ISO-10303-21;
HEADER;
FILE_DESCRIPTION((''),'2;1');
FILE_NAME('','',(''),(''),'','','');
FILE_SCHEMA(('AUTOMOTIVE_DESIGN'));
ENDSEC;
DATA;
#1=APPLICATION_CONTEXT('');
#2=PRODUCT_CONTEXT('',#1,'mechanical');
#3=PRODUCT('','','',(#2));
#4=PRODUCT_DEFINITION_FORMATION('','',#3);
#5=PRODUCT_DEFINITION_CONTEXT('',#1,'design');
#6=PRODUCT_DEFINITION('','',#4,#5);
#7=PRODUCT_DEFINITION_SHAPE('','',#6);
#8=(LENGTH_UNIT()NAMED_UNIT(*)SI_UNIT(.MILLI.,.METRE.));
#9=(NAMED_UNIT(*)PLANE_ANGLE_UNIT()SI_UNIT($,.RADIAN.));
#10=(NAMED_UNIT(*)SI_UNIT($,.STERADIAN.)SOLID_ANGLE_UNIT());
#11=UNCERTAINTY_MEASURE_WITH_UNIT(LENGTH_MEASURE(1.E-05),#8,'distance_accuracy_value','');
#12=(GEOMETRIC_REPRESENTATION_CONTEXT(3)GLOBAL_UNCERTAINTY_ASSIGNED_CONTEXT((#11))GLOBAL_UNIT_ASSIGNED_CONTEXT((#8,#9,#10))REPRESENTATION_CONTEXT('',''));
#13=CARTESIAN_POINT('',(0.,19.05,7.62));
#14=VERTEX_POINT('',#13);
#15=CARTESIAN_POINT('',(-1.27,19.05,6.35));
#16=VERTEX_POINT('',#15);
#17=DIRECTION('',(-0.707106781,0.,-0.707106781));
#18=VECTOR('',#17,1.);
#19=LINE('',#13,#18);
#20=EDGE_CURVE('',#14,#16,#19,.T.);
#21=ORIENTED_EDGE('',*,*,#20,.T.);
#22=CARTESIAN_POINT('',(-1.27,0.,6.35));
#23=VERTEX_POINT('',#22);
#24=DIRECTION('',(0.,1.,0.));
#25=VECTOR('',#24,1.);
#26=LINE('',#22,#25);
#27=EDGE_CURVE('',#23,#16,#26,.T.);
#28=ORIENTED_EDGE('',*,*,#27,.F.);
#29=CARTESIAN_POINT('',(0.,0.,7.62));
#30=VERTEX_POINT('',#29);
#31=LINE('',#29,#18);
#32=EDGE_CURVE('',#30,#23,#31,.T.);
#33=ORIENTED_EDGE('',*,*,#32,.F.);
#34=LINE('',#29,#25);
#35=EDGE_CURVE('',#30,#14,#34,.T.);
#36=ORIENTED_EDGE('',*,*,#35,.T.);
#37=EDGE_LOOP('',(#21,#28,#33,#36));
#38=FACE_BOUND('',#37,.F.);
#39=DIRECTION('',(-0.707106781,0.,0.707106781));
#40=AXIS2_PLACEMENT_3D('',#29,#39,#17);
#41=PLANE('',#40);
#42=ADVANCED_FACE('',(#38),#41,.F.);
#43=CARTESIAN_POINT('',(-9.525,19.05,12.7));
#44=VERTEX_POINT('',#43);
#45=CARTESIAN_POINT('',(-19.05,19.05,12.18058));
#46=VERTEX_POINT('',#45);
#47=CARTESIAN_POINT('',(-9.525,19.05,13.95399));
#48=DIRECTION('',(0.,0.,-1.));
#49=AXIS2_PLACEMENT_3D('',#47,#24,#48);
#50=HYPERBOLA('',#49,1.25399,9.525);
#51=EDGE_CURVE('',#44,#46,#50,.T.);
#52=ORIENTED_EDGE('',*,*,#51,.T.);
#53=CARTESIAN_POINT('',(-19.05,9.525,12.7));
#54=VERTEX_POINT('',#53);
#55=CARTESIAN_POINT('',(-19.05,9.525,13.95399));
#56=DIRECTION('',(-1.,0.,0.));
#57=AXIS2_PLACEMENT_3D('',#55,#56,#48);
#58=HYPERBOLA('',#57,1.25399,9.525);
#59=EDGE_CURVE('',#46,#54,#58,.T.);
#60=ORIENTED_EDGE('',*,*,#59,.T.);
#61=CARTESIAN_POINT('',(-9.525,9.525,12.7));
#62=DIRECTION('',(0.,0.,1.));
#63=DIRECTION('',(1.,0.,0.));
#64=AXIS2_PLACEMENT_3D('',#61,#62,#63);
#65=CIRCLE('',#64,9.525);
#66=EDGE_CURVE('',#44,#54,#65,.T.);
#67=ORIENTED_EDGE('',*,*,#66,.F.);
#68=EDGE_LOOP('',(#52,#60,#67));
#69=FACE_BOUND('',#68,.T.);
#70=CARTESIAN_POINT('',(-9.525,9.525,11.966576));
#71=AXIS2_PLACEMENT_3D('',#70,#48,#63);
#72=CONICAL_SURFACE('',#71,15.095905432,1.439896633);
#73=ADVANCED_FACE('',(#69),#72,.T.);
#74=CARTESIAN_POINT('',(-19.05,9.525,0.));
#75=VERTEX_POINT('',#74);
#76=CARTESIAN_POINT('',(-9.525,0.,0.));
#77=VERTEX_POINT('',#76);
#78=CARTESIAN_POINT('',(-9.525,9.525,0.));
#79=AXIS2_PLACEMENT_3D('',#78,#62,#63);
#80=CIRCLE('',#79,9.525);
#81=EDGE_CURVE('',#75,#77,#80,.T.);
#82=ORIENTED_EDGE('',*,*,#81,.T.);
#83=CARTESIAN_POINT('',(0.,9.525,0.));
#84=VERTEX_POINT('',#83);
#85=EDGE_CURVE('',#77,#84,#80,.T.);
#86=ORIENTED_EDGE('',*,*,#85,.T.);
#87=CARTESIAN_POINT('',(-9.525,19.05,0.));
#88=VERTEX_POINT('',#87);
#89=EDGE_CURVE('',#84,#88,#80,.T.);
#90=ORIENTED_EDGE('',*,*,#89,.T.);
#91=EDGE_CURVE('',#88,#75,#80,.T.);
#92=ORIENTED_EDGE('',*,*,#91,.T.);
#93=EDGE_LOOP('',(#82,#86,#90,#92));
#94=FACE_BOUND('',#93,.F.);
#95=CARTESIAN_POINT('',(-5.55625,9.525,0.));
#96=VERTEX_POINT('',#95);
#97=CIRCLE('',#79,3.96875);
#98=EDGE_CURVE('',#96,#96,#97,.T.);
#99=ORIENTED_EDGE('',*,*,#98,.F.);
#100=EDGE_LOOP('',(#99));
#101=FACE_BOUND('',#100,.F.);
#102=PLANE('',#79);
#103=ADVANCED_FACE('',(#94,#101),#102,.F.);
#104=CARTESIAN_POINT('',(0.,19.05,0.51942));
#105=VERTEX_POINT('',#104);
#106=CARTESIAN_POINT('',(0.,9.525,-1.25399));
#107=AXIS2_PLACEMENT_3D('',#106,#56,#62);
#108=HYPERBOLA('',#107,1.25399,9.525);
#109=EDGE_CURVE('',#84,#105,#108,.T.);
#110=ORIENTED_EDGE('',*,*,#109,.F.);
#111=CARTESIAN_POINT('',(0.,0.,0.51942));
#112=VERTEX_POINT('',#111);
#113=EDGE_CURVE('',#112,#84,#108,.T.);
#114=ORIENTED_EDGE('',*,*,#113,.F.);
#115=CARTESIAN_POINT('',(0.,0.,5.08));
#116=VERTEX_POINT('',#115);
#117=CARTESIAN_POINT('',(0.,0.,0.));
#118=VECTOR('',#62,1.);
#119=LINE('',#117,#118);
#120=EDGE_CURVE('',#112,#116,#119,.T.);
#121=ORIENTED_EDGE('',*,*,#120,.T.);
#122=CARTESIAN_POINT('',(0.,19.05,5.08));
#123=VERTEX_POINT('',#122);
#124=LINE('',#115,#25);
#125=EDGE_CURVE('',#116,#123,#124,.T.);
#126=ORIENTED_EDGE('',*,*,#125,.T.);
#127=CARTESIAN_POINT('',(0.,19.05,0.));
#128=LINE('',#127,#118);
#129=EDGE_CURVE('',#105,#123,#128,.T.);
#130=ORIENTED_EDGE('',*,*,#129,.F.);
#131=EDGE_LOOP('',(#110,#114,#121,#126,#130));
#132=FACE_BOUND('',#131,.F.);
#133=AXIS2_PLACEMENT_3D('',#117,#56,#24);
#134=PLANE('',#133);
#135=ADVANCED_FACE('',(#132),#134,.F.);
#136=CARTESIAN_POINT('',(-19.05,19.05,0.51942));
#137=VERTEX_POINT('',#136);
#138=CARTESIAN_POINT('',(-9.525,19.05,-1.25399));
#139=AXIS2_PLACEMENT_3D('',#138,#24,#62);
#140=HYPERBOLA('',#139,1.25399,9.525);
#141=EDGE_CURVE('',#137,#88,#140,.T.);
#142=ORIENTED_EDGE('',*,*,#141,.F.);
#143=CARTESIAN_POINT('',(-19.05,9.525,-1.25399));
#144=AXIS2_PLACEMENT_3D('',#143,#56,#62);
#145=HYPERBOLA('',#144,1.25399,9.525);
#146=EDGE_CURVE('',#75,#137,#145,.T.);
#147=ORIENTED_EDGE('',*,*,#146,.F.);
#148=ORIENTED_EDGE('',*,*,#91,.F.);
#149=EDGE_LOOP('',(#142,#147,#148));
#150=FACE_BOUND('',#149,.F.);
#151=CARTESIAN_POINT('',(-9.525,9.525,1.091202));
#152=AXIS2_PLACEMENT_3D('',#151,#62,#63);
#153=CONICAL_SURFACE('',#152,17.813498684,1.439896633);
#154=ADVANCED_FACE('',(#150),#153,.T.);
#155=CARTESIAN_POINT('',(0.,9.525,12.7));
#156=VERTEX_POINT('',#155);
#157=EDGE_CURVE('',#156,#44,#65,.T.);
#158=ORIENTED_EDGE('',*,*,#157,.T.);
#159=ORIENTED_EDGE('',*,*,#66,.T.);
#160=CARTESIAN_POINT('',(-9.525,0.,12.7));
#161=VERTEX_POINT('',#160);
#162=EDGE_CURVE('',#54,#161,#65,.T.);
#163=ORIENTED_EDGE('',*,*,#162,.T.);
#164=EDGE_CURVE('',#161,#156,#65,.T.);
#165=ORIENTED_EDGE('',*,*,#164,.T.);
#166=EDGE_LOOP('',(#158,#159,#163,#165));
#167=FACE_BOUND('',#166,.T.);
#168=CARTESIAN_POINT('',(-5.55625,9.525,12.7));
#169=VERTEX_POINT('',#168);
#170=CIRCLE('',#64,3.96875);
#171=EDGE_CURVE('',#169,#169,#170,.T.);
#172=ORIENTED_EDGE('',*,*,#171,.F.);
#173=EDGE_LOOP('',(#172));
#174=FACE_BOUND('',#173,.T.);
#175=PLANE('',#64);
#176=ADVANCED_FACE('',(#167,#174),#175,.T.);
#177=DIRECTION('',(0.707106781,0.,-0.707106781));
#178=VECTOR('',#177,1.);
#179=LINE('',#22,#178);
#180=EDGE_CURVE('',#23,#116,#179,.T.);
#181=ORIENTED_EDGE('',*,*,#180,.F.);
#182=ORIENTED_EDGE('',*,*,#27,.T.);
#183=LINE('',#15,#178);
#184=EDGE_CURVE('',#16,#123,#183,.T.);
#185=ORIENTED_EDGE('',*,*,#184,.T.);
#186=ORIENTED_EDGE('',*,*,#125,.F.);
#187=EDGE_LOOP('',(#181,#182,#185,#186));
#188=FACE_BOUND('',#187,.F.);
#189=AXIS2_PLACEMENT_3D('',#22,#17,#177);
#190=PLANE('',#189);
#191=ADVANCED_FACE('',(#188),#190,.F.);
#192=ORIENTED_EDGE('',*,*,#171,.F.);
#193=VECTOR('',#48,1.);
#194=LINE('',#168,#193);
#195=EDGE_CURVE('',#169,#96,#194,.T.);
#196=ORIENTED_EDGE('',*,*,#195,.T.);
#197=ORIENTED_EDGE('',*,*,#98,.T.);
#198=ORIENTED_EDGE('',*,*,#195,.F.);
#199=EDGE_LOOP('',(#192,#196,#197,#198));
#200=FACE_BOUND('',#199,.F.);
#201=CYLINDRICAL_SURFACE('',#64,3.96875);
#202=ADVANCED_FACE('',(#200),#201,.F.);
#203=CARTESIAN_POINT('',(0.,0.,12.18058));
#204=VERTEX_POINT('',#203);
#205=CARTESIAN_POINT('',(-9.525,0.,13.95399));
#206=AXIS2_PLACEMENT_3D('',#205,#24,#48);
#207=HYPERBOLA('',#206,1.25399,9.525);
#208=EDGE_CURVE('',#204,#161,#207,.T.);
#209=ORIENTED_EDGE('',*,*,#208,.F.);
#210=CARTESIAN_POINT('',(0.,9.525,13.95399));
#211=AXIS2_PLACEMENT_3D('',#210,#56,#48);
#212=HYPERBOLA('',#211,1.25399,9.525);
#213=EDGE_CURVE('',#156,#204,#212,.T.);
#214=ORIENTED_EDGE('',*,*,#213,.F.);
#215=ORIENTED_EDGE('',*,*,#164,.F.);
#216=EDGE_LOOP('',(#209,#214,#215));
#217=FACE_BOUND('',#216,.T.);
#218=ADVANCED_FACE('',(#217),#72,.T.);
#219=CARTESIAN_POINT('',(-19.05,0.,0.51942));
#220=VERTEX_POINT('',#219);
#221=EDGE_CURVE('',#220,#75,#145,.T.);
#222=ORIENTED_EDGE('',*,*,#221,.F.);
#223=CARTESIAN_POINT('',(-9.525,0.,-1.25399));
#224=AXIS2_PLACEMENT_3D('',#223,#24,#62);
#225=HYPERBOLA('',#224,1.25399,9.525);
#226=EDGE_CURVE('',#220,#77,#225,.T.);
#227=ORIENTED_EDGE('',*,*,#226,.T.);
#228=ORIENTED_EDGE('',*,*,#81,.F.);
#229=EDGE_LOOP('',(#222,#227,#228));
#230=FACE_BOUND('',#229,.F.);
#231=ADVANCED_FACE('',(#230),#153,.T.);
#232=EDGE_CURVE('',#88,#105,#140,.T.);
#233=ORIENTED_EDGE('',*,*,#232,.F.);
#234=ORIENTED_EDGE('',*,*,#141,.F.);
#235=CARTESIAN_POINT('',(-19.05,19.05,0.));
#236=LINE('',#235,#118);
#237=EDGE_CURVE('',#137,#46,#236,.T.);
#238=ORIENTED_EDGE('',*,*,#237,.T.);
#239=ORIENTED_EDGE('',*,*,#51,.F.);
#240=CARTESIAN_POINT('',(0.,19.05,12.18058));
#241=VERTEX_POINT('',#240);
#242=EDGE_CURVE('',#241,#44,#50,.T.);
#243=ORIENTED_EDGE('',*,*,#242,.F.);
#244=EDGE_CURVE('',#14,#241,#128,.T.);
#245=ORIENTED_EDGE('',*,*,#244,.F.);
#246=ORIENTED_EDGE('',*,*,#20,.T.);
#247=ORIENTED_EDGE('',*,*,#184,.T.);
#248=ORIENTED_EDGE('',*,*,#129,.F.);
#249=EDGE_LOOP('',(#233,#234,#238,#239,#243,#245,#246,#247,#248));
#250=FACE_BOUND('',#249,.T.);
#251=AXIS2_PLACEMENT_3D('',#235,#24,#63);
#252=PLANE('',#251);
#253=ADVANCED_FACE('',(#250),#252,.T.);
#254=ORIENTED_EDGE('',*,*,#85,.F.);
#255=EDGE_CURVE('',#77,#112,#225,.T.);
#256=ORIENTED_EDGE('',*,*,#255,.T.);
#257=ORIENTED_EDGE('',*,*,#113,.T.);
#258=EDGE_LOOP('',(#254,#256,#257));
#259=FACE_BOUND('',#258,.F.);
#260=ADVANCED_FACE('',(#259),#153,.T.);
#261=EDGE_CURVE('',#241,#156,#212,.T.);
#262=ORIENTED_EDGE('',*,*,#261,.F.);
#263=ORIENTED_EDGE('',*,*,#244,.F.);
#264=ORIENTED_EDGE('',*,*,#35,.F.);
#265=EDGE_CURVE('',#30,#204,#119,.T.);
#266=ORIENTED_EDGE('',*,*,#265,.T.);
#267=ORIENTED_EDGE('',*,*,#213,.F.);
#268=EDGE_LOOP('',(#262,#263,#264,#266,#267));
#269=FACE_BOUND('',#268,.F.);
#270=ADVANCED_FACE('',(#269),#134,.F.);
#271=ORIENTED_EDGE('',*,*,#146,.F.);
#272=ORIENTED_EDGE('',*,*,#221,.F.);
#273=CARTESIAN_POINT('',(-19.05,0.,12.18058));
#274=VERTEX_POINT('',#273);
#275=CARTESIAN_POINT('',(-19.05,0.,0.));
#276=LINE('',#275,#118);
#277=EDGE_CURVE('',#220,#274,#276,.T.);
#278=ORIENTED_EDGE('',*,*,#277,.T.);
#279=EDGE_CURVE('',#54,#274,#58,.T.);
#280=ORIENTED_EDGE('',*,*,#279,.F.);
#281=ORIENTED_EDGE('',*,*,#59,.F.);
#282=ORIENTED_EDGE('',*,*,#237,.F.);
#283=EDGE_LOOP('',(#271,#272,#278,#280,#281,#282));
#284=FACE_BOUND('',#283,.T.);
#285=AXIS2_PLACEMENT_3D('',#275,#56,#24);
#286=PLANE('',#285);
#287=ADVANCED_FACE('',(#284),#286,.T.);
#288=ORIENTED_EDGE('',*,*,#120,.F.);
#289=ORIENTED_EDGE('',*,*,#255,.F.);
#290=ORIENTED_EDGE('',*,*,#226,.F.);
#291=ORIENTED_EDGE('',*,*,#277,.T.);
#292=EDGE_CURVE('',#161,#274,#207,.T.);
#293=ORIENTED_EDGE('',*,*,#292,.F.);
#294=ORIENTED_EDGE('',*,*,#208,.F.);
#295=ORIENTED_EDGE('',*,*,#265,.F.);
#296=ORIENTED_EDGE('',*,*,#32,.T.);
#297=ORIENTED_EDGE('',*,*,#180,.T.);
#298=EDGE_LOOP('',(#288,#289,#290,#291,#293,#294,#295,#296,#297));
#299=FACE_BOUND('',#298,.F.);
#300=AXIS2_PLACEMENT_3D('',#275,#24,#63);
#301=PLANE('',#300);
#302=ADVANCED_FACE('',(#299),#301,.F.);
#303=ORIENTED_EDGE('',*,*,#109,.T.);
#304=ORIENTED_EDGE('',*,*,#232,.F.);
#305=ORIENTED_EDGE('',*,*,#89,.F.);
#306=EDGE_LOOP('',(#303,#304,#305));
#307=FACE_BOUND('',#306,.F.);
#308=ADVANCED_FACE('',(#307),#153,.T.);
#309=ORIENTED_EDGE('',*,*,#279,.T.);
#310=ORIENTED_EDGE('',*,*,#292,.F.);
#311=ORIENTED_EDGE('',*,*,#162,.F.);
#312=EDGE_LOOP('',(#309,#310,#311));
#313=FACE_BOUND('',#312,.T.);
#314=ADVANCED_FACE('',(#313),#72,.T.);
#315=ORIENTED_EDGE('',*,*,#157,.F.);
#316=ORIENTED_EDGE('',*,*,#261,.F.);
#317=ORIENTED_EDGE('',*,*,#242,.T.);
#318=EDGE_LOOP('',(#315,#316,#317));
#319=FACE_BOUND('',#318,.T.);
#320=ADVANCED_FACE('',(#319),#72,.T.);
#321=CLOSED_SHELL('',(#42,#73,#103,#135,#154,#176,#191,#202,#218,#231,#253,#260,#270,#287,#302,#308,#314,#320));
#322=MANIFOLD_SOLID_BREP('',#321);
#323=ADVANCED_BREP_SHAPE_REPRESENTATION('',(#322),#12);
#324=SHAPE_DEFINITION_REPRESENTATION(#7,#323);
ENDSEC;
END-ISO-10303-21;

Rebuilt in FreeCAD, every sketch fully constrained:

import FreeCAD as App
import Part
import Sketcher
from FreeCAD import Vector
Q = App.Units.Quantity

doc = App.newDocument("Part")
params = doc.addObject("Spreadsheet::Sheet", "Params")
for row, (alias, value) in enumerate([
    ("sketch1_width", "0.75 in"),
    ("pad1_length", "0.5 in"),
    ("sketch2_diameter", "0.3125 in"),
    ("sketch4_diameter", "0.75 in"),
    ("groove_angle", "360 deg"),
    ("sketch6_height", "0.1 in"),
    ("pocket2_length", "0.75 in"),
], start=1):
    params.set(f"A{row}", alias)
    params.set(f"B{row}", "=" + value)
    params.setAlias(f"B{row}", alias)

body = doc.addObject("PartDesign::Body", "Body")

# Sketch on XY plane
sketch1 = body.newObject("Sketcher::SketchObject", "Sketch")
sketch1.AttachmentSupport = (doc.getObject("XY_Plane"), [""])
sketch1.MapMode = "FlatFace"
sketch1.addGeometry([
    Part.LineSegment(Vector(-19, 19, 0), Vector(-19, 0, 0)),
    Part.LineSegment(Vector(-19, 0, 0), Vector(0, 0, 0)),
    Part.LineSegment(Vector(0, 0, 0), Vector(0, 19, 0)),
    Part.LineSegment(Vector(0, 19, 0), Vector(-19, 19, 0)),
], False)
sketch1.addConstraint([
    Sketcher.Constraint("Coincident", 0, 2, 1, 1),
    Sketcher.Constraint("Coincident", 1, 2, 2, 1),
    Sketcher.Constraint("Coincident", 2, 2, 3, 1),
    Sketcher.Constraint("Coincident", 3, 2, 0, 1),
    Sketcher.Constraint("Vertical", 0),
    Sketcher.Constraint("Horizontal", 1),
    Sketcher.Constraint("Vertical", 2),
    Sketcher.Constraint("Horizontal", 3),
    Sketcher.Constraint("Coincident", 1, 2, -1, 1),
    Sketcher.Constraint("Equal", 3, 0),
    Sketcher.Constraint("DistanceX", 1, 1, 1, 2, Q("0.75 in")),
])
sketch1.setExpression("Constraints[10]", "Params.sketch1_width")
pad1 = body.newObject("PartDesign::Pad", "Pad")
pad1.Profile = sketch1
pad1.setExpression("Length", "Params.pad1_length")

# Sketch on XY plane
sketch2 = body.newObject("Sketcher::SketchObject", "Sketch001")
sketch2.AttachmentSupport = (doc.getObject("XY_Plane"), [""])
sketch2.MapMode = "FlatFace"
sketch2.AttachmentOffset = App.Placement(Vector(0, 0, 0.5 * 25.4), App.Rotation())
sketch2.addGeometry(Part.Circle(Vector(-9.5, 9.5, 0), Vector(0, 0, 1), 4), False)
sketch2.addConstraint([
    Sketcher.Constraint("Diameter", 0, Q("0.3125 in")),
    Sketcher.Constraint("DistanceX", 0, 3, -1, 1, Q("0.375 in")),
    Sketcher.Constraint("DistanceY", -1, 1, 0, 3, Q("0.375 in")),
])
sketch2.setExpression("Constraints[0]", "Params.sketch2_diameter")
pocket1 = body.newObject("PartDesign::Pocket", "Pocket")
pocket1.Profile = sketch2
pocket1.Type = "ThroughAll"

# Sketch on XZ plane
sketch3 = body.newObject("Sketcher::SketchObject", "Sketch002")
sketch3.AttachmentSupport = (doc.getObject("XZ_Plane"), [""])
sketch3.MapMode = "FlatFace"
sketch3.AttachmentOffset = App.Placement(Vector(0, 0, -0.375 * 25.4), App.Rotation())
sketch3.addGeometry([
    Part.LineSegment(Vector(-24.6, 12, 0), Vector(-19.1, 12.7, 0)),
    Part.LineSegment(Vector(-19.1, 12.7, 0), Vector(-24.6, 13.4, 0)),
    Part.LineSegment(Vector(-24.6, 13.4, 0), Vector(-24.6, 12, 0)),
], False)
sketch3.addConstraint([
    Sketcher.Constraint("Coincident", 0, 2, 1, 1),
    Sketcher.Constraint("Coincident", 1, 2, 2, 1),
    Sketcher.Constraint("Coincident", 2, 2, 0, 1),
    Sketcher.Constraint("Vertical", 2),
    Sketcher.Constraint("Equal", 0, 1),
    Sketcher.Constraint("DistanceY", -1, 1, 0, 2, Q("0.5 in")),
    Sketcher.Constraint("Angle", 0, Q("7.5 deg")),
    Sketcher.Constraint("DistanceX", 0, 2, -1, 1, Q("0.75 in")),
    Sketcher.Constraint("DistanceY", 2, 2, 2, 1, 1.466847),
])

# Sketch on XY plane
sketch4 = body.newObject("Sketcher::SketchObject", "Sketch003")
sketch4.AttachmentSupport = (doc.getObject("XY_Plane"), [""])
sketch4.MapMode = "FlatFace"
sketch4.AttachmentOffset = App.Placement(Vector(0, 0, 0.5 * 25.4), App.Rotation())
sketch4.addGeometry(Part.Circle(Vector(-10, 10, 0), Vector(0, 0, 1), 10), False)
sketch4.addConstraint([
    Sketcher.Constraint("Diameter", 0, Q("0.75 in")),
    Sketcher.Constraint("DistanceX", 0, 3, -1, 1, Q("0.375 in")),
    Sketcher.Constraint("DistanceY", -1, 1, 0, 3, Q("0.375 in")),
])
sketch4.setExpression("Constraints[0]", "Params.sketch4_diameter")
doc.recompute()

subtractivepipe = body.newObject("PartDesign::SubtractivePipe", "SubtractivePipe")
subtractivepipe.Profile = sketch3
subtractivepipe.Spine = (sketch4, ["Edge1"])

# Sketch on XZ plane
sketch5 = body.newObject("Sketcher::SketchObject", "Sketch004")
sketch5.AttachmentSupport = (doc.getObject("XZ_Plane"), [""])
sketch5.MapMode = "FlatFace"
sketch5.AttachmentOffset = App.Placement(Vector(0, 0, -0.375 * 25.4), App.Rotation())
sketch5.addGeometry([
    Part.LineSegment(Vector(0, 0, 0), Vector(8.3, -1.1, 0)),
    Part.LineSegment(Vector(8.3, -1.1, 0), Vector(8.3, 1.1, 0)),
    Part.LineSegment(Vector(8.3, 1.1, 0), Vector(0, 0, 0)),
], False)
sketch5.addGeometry(Part.LineSegment(Vector(-9.5, -1.1, 0), Vector(-9.5, 1.1, 0)), True)  # axis
sketch5.addConstraint([
    Sketcher.Constraint("Coincident", 0, 2, 1, 1),
    Sketcher.Constraint("Coincident", 1, 2, 2, 1),
    Sketcher.Constraint("Coincident", 2, 2, 0, 1),
    Sketcher.Constraint("Vertical", 1),
    Sketcher.Constraint("Vertical", 3),
    Sketcher.Constraint("Coincident", 2, 2, -1, 1),
    Sketcher.Constraint("Horizontal", 0, 2, 3, 1),
    Sketcher.Constraint("Horizontal", 1, 2, 3, 2),
    Sketcher.Constraint("Equal", 0, 2),
    Sketcher.Constraint("Angle", 0, Q("-7.5 deg")),
    Sketcher.Constraint("DistanceX", 3, 1, -1, 1, Q("0.375 in")),
    Sketcher.Constraint("DistanceX", -1, 1, 0, 2, 8.288499),
])
groove = body.newObject("PartDesign::Groove", "Groove")
groove.Profile = sketch5
groove.ReferenceAxis = (sketch5, ["Axis0"])
groove.setExpression("Angle", "Params.groove_angle")

# Sketch on XZ plane
sketch6 = body.newObject("Sketcher::SketchObject", "Sketch005")
sketch6.AttachmentSupport = (doc.getObject("XZ_Plane"), [""])
sketch6.MapMode = "FlatFace"
sketch6.addGeometry([
    Part.LineSegment(Vector(0, 7.6, 0), Vector(-1.3, 6.3, 0)),
    Part.LineSegment(Vector(-1.3, 6.3, 0), Vector(0, 5.1, 0)),
    Part.LineSegment(Vector(0, 5.1, 0), Vector(0, 7.6, 0)),
], False)
sketch6.addConstraint([
    Sketcher.Constraint("Coincident", 0, 2, 1, 1),
    Sketcher.Constraint("Coincident", 1, 2, 2, 1),
    Sketcher.Constraint("Coincident", 2, 2, 0, 1),
    Sketcher.Constraint("Vertical", 2),
    Sketcher.Constraint("PointOnObject", 1, 2, -2),
    Sketcher.Constraint("Perpendicular", 0, 1),
    Sketcher.Constraint("Equal", 0, 1),
    Sketcher.Constraint("DistanceY", 2, 1, 2, 2, Q("0.1 in")),
    Sketcher.Constraint("DistanceY", -1, 1, 1, 2, Q("0.2 in")),
])
sketch6.setExpression("Constraints[7]", "Params.sketch6_height")
pocket2 = body.newObject("PartDesign::Pocket", "Pocket001")
pocket2.Profile = sketch6
pocket2.setExpression("Length", "Params.pocket2_length")

doc.recompute()
